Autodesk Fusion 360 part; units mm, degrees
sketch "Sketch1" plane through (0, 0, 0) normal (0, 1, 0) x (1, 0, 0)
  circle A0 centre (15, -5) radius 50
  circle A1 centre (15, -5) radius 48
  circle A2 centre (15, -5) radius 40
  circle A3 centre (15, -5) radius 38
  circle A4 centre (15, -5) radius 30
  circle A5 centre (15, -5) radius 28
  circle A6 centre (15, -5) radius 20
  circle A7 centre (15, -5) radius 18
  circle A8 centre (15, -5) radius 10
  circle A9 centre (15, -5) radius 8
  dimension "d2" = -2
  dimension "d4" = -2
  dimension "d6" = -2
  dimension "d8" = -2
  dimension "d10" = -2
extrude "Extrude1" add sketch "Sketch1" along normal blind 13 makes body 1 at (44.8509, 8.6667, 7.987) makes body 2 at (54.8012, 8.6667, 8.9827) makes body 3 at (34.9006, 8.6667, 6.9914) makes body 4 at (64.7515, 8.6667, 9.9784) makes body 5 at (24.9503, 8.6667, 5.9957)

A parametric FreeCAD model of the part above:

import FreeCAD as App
import Part
import Sketcher
from FreeCAD import Vector

doc = App.newDocument("Part")
body = doc.addObject("PartDesign::Body", "Body")
body.AllowCompound = True

sketch1 = body.newObject("Sketcher::SketchObject", "Sketch")
sketch1.AttachmentSupport = (doc.getObject("XZ_Plane"), [""])
sketch1.MapMode = "FlatFace"
sketch1.addGeometry([
    Part.Circle(Vector(15, 5, 0), Vector(0, 0, 1), 50),
    Part.Circle(Vector(15, 5, 0), Vector(0, 0, 1), 48),
    Part.Circle(Vector(15, 5, 0), Vector(0, 0, 1), 40),
    Part.Circle(Vector(15, 5, 0), Vector(0, 0, 1), 38),
    Part.Circle(Vector(15, 5, 0), Vector(0, 0, 1), 30),
    Part.Circle(Vector(15, 5, 0), Vector(0, 0, 1), 28),
    Part.Circle(Vector(15, 5, 0), Vector(0, 0, 1), 20),
    Part.Circle(Vector(15, 5, 0), Vector(0, 0, 1), 18),
    Part.Circle(Vector(15, 5, 0), Vector(0, 0, 1), 10),
    Part.Circle(Vector(15, 5, 0), Vector(0, 0, 1), 8),
], False)
sketch1.addConstraint([
    Sketcher.Constraint("Coincident", 1, 3, 0, 3),
    Sketcher.Constraint("Coincident", 2, 3, 0, 3),
    Sketcher.Constraint("Coincident", 3, 3, 0, 3),
    Sketcher.Constraint("Coincident", 4, 3, 0, 3),
    Sketcher.Constraint("Coincident", 5, 3, 0, 3),
    Sketcher.Constraint("Coincident", 6, 3, 0, 3),
    Sketcher.Constraint("Coincident", 7, 3, 0, 3),
    Sketcher.Constraint("Coincident", 8, 3, 0, 3),
    Sketcher.Constraint("Coincident", 9, 3, 0, 3),
    Sketcher.Constraint("Diameter", 0, 100.0),
    Sketcher.Constraint("Diameter", 1, 96.0),
    Sketcher.Constraint("Diameter", 2, 80.0),
    Sketcher.Constraint("Diameter", 3, 76.0),
    Sketcher.Constraint("Diameter", 4, 60.0),
    Sketcher.Constraint("Diameter", 5, 56.0),
    Sketcher.Constraint("Diameter", 6, 40.0),
    Sketcher.Constraint("Diameter", 7, 36.0),
    Sketcher.Constraint("Diameter", 8, 20.0),
    Sketcher.Constraint("Diameter", 9, 16.0),
    Sketcher.Constraint("DistanceX", -1, 1, 0, 3, 15.0),
    Sketcher.Constraint("DistanceY", -1, 1, 0, 3, 5.0),
])
pad1 = body.newObject("PartDesign::Pad", "Pad")
pad1.Profile = sketch1
pad1.Length = 13
pad1.Reversed = True

doc.recompute()
